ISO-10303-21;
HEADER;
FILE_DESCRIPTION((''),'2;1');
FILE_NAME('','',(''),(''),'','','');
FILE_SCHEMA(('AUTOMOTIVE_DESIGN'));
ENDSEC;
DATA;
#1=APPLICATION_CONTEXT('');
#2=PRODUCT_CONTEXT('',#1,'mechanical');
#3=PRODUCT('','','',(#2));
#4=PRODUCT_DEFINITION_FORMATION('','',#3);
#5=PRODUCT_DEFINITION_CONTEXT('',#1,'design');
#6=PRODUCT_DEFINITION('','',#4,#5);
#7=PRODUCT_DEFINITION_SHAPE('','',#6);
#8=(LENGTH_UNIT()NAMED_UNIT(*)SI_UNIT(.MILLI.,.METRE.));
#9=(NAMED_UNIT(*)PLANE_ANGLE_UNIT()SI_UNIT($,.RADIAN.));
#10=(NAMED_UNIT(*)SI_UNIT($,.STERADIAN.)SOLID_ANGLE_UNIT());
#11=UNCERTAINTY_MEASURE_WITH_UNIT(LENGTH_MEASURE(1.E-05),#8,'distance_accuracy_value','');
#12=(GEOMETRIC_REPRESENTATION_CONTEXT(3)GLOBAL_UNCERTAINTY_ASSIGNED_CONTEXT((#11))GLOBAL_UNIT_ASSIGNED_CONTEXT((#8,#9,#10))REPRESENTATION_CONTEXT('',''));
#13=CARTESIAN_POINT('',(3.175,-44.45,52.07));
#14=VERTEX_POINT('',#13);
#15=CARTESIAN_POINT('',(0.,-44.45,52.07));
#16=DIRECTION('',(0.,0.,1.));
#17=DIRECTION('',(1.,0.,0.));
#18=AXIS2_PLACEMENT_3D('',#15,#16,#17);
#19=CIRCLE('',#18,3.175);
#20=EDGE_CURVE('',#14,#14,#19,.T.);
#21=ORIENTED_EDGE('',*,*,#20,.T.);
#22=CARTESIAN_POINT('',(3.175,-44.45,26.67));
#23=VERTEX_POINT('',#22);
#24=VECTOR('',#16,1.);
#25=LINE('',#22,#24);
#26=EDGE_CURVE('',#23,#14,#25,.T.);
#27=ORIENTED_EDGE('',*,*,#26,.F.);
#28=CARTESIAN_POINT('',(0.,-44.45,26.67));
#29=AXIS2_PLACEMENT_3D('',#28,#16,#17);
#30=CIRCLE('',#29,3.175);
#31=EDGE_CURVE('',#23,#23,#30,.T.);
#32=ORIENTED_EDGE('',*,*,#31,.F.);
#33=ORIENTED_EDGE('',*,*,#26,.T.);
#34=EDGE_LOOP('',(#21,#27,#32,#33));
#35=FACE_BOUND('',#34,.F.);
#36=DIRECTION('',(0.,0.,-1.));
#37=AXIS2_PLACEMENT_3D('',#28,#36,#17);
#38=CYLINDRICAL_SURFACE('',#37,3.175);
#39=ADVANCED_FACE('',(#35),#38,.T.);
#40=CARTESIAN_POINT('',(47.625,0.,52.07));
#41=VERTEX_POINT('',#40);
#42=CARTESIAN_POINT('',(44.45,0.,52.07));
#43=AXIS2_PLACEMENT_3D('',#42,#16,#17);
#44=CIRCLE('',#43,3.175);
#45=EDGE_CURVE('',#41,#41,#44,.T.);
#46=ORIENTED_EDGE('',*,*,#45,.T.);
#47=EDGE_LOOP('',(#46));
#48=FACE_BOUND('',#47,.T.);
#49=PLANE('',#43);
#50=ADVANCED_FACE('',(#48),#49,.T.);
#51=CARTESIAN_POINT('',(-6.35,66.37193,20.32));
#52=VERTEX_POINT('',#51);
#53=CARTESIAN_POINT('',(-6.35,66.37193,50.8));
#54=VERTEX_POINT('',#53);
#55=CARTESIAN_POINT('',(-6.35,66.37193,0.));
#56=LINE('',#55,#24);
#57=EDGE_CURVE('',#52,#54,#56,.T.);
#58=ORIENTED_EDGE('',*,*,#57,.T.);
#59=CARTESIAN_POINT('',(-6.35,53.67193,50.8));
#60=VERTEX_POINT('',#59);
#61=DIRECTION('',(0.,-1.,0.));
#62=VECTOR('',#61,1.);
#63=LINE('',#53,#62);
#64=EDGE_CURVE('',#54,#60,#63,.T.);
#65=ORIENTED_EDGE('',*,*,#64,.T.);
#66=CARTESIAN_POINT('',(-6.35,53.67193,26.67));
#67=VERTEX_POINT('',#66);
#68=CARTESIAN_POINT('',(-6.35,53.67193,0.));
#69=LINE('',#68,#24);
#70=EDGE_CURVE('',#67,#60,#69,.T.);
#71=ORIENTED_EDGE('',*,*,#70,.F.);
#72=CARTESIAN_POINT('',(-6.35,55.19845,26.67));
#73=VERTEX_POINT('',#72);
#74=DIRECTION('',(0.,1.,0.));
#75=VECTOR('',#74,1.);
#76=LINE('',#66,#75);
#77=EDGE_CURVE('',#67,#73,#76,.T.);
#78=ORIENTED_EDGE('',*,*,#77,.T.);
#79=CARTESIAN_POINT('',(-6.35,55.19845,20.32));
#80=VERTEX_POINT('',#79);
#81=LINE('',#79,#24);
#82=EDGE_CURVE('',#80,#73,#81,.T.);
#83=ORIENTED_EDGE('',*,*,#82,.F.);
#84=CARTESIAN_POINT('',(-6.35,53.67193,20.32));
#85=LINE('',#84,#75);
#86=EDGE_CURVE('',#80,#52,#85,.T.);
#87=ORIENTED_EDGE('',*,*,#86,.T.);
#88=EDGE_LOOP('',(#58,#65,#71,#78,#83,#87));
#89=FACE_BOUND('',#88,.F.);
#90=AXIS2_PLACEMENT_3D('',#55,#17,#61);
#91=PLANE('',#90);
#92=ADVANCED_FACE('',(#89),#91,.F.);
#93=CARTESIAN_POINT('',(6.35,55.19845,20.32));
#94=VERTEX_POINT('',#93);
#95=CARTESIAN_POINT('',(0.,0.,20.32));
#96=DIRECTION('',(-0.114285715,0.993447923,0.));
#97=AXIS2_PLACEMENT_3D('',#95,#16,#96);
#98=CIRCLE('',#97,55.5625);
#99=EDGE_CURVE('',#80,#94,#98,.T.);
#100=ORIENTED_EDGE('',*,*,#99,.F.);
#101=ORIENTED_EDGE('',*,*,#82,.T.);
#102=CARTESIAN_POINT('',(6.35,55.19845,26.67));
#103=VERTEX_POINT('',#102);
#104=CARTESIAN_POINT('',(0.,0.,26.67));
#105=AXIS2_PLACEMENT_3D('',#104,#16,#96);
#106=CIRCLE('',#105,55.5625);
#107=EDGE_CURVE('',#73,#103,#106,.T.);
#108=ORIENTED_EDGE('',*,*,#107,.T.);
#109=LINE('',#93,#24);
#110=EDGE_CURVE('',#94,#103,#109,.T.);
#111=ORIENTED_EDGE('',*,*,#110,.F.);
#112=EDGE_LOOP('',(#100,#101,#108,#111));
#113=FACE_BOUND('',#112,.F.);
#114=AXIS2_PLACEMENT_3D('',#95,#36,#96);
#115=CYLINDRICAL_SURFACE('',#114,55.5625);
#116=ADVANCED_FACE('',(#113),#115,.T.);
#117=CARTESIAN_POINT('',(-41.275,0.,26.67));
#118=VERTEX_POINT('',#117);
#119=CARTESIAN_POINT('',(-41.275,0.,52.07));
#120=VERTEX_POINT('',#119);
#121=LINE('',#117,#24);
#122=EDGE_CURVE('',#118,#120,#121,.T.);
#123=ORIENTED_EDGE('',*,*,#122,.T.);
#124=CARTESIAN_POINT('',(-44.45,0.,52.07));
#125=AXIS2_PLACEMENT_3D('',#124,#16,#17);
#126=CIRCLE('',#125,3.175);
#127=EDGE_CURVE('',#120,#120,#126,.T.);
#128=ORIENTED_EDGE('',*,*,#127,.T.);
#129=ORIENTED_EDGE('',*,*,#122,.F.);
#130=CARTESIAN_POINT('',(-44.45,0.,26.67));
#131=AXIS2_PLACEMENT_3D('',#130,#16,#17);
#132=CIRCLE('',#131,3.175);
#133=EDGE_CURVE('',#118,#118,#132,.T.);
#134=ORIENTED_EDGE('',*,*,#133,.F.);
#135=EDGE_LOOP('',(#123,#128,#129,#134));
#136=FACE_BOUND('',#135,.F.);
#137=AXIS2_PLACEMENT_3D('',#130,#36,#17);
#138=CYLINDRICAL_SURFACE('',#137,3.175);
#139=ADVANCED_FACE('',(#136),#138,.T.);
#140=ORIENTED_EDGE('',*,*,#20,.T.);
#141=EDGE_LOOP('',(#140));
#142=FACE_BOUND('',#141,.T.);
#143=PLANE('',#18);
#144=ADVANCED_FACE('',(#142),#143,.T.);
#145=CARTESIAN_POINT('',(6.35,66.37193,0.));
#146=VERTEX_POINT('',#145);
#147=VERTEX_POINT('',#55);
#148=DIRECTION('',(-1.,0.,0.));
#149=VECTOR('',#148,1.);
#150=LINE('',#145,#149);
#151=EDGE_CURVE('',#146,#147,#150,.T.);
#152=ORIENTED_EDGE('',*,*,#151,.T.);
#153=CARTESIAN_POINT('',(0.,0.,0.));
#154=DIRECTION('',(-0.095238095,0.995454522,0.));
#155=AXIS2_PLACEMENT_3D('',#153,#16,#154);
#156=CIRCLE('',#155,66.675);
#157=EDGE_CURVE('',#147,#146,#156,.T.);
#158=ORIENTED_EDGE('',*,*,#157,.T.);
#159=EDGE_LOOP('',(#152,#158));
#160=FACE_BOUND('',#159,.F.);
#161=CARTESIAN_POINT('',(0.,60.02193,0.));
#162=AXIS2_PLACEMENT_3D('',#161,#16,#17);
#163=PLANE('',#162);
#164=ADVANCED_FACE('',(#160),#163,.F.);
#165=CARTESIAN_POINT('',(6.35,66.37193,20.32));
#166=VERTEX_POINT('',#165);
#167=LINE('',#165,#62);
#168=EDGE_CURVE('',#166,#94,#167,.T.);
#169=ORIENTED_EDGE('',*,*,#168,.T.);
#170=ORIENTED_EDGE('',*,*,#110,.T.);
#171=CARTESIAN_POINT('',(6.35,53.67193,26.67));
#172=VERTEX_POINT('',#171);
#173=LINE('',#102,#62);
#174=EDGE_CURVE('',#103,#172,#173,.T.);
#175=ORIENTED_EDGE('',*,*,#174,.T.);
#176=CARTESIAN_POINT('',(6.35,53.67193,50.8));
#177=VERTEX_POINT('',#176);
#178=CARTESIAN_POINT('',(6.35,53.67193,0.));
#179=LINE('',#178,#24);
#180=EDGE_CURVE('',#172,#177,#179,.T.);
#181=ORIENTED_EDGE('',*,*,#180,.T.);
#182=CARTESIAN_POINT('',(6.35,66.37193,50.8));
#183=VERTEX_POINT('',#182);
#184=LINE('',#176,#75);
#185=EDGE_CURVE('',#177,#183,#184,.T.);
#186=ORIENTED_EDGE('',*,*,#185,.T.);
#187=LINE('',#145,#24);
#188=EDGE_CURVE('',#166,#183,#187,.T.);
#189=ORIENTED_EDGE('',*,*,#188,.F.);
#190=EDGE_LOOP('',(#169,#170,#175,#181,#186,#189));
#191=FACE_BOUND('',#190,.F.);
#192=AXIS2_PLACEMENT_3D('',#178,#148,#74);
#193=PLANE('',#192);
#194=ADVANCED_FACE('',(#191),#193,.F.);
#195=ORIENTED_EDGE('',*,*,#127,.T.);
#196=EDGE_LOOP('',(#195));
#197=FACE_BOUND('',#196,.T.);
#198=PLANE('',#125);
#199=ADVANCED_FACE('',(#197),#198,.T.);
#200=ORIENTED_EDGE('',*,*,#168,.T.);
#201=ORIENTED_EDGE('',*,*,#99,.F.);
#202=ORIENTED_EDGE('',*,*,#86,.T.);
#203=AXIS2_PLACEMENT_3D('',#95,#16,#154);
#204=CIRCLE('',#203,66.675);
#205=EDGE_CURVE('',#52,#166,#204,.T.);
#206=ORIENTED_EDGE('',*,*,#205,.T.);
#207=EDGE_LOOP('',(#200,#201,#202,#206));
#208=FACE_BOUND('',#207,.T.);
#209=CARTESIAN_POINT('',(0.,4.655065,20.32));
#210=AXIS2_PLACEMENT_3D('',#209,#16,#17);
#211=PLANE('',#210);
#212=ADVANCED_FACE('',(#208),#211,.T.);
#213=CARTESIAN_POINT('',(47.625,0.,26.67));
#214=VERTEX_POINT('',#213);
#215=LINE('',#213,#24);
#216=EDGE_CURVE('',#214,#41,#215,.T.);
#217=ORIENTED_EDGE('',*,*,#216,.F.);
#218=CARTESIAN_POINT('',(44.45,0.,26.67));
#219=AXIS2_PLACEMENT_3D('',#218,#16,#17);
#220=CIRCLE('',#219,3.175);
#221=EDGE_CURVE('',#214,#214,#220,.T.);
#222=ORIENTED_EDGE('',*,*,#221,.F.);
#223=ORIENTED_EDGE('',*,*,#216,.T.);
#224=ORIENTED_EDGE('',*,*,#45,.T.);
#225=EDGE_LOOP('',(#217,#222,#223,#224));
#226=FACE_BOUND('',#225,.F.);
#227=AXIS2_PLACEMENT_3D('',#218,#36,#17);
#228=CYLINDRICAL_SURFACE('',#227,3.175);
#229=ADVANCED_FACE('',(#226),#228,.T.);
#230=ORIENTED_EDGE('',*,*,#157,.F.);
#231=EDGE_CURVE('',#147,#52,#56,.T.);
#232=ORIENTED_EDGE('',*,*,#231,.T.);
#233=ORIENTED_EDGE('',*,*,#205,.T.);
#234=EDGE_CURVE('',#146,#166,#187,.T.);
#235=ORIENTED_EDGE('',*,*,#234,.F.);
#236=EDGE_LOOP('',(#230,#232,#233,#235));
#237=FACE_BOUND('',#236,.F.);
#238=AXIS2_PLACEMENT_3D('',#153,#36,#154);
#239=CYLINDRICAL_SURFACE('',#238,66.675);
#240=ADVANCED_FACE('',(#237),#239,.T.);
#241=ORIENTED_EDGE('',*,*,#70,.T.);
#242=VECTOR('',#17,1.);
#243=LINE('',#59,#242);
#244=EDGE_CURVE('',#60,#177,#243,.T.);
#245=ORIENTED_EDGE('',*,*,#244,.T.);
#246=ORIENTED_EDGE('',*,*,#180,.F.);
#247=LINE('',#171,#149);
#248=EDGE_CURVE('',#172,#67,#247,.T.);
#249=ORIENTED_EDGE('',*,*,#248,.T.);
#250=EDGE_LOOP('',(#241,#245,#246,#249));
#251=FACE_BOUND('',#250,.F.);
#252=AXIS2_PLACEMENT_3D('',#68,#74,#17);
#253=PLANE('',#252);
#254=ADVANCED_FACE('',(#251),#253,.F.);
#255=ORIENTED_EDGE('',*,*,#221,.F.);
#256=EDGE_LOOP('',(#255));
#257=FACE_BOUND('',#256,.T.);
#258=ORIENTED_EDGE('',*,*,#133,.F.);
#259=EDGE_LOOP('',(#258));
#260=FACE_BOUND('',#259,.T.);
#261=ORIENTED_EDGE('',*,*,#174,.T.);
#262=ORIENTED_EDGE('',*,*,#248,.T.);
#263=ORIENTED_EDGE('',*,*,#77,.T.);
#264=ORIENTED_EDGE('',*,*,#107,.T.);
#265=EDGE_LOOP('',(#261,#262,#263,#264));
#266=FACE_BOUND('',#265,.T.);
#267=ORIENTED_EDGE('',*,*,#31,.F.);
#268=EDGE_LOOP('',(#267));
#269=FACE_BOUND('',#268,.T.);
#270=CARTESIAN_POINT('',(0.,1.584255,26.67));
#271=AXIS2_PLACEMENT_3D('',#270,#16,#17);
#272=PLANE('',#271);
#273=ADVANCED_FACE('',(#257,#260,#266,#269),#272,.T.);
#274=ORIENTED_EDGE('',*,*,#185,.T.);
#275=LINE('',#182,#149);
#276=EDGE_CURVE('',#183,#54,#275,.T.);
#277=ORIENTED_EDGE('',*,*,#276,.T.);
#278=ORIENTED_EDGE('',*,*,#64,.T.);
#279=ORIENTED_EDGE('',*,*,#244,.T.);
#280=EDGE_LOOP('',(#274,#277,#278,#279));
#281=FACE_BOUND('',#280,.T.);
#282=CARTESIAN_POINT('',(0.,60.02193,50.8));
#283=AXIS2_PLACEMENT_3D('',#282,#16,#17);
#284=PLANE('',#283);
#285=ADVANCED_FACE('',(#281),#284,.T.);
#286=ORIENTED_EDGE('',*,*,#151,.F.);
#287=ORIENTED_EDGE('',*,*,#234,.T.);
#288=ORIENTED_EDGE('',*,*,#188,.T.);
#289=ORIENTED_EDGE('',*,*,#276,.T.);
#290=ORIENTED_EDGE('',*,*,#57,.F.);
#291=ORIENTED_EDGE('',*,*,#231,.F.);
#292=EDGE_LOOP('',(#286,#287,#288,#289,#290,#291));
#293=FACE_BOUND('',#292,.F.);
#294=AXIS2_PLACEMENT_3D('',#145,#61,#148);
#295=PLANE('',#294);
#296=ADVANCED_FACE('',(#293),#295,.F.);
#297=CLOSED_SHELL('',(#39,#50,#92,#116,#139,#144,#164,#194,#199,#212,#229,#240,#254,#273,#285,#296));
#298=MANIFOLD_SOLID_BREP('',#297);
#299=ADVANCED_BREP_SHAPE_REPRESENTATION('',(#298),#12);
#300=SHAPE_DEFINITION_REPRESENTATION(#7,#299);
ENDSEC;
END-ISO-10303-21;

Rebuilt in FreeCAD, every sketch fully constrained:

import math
import FreeCAD as App
import Part
import Sketcher
from FreeCAD import Vector
Q = App.Units.Quantity

doc = App.newDocument("Part")
body = doc.addObject("PartDesign::Body", "Body")

sketch1 = body.newObject("Sketcher::SketchObject", "Sketch")
sketch1.AttachmentSupport = (doc.getObject("XY_Plane"), [""])
sketch1.MapMode = "FlatFace"
sketch1.addGeometry([
    Part.LineSegment(Vector(-6.35, 53.67193, 0), Vector(-6.35, 66.37193, 0)),
    Part.ArcOfCircle(Part.Circle(Vector(0, 0, 0), Vector(0, 0, 1), 66.675), math.radians(95.465024), math.radians(444.534976)),
    Part.LineSegment(Vector(6.35, 66.37193, 0), Vector(6.35, 53.67193, 0)),
    Part.LineSegment(Vector(6.35, 53.67193, 0), Vector(-6.35, 53.67193, 0)),
], False)
sketch1.addConstraint([
    Sketcher.Constraint("Coincident", 0, 2, 1, 1),
    Sketcher.Constraint("Coincident", 1, 2, 2, 1),
    Sketcher.Constraint("Coincident", 2, 2, 3, 1),
    Sketcher.Constraint("Coincident", 3, 2, 0, 1),
    Sketcher.Constraint("Vertical", 0),
    Sketcher.Constraint("Vertical", 2),
    Sketcher.Constraint("Horizontal", 3),
    Sketcher.Constraint("Coincident", 1, 3, -1, 1),
    Sketcher.Constraint("Horizontal", 0, 2, 1, 2),
    Sketcher.Constraint("Equal", 3, 0),
    Sketcher.Constraint("DistanceX", 3, 2, 3, 1, Q("0.5 in")),
    Sketcher.Constraint("Radius", 1, Q("2.625 in")),
])
pad1 = body.newObject("PartDesign::Pad", "Pad")
pad1.Profile = sketch1
pad1.Length = Q("0.8 in")

sketch2 = body.newObject("Sketcher::SketchObject", "Sketch001")
sketch2.AttachmentSupport = (doc.getObject("XY_Plane"), [""])
sketch2.MapMode = "FlatFace"
sketch2.AttachmentOffset = App.Placement(Vector(0, 0, 0.8 * 25.4), App.Rotation())
sketch2.addGeometry([
    Part.LineSegment(Vector(-6.35, 53.67193, 0), Vector(-6.35, 55.19845, 0)),
    Part.ArcOfCircle(Part.Circle(Vector(0, 0, 0), Vector(0, 0, 1), 55.5625), math.radians(96.562428), math.radians(443.437572)),
    Part.LineSegment(Vector(6.35, 55.19845, 0), Vector(6.35, 53.67193, 0)),
    Part.LineSegment(Vector(6.35, 53.67193, 0), Vector(-6.35, 53.67193, 0)),
], False)
sketch2.addConstraint([
    Sketcher.Constraint("Coincident", 0, 2, 1, 1),
    Sketcher.Constraint("Coincident", 1, 2, 2, 1),
    Sketcher.Constraint("Coincident", 2, 2, 3, 1),
    Sketcher.Constraint("Coincident", 3, 2, 0, 1),
    Sketcher.Constraint("Vertical", 0),
    Sketcher.Constraint("Vertical", 2),
    Sketcher.Constraint("Horizontal", 3),
    Sketcher.Constraint("Coincident", 1, 3, -1, 1),
    Sketcher.Constraint("Horizontal", 0, 2, 1, 2),
    Sketcher.Constraint("DistanceX", 3, 2, 3, 1, Q("0.5 in")),
    Sketcher.Constraint("Radius", 1, Q("2.1875 in")),
    Sketcher.Constraint("DistanceY", 0, 1, 0, 2, Q("1.52652 mm")),
])
pad2 = body.newObject("PartDesign::Pad", "Pad001")
pad2.Profile = sketch2
pad2.Length = Q("0.25 in")

sketch3 = body.newObject("Sketcher::SketchObject", "Sketch002")
sketch3.AttachmentSupport = (doc.getObject("XY_Plane"), [""])
sketch3.MapMode = "FlatFace"
sketch3.addGeometry([
    Part.LineSegment(Vector(-6.35, 53.67193, 0), Vector(6.35, 53.67193, 0)),
    Part.LineSegment(Vector(6.35, 53.67193, 0), Vector(6.35, 66.37193, 0)),
    Part.LineSegment(Vector(6.35, 66.37193, 0), Vector(-6.35, 66.37193, 0)),
    Part.LineSegment(Vector(-6.35, 66.37193, 0), Vector(-6.35, 53.67193, 0)),
], False)
sketch3.addConstraint([
    Sketcher.Constraint("Coincident", 0, 2, 1, 1),
    Sketcher.Constraint("Coincident", 1, 2, 2, 1),
    Sketcher.Constraint("Coincident", 2, 2, 3, 1),
    Sketcher.Constraint("Coincident", 3, 2, 0, 1),
    Sketcher.Constraint("Horizontal", 0),
    Sketcher.Constraint("Vertical", 1),
    Sketcher.Constraint("Horizontal", 2),
    Sketcher.Constraint("Vertical", 3),
    Sketcher.Constraint("Equal", 2, 1),
    Sketcher.Constraint("DistanceX", 0, 1, 0, 2, Q("0.5 in")),
    Sketcher.Constraint("DistanceX", -1, 1, 0, 2, Q("0.25 in")),
    Sketcher.Constraint("DistanceY", -1, 1, 0, 2, Q("53.67193 mm")),
])
pad3 = body.newObject("PartDesign::Pad", "Pad002")
pad3.Profile = sketch3
pad3.Length = Q("2 in")

sketch4 = body.newObject("Sketcher::SketchObject", "Sketch003")
sketch4.AttachmentSupport = (doc.getObject("XY_Plane"), [""])
sketch4.MapMode = "FlatFace"
sketch4.AttachmentOffset = App.Placement(Vector(0, 0, 1.05 * 25.4), App.Rotation())
sketch4.addGeometry([
    Part.Circle(Vector(44.45, 0, 0), Vector(0, 0, 1), 3.175),
    Part.Circle(Vector(0, -44.45, 0), Vector(0, 0, 1), 3.175),
    Part.Circle(Vector(-44.45, 0, 0), Vector(0, 0, 1), 3.175),
], False)
sketch4.addConstraint([
    Sketcher.Constraint("Equal", 0, 1),
    Sketcher.Constraint("Equal", 1, 2),
    Sketcher.Constraint("Symmetric", 0, 3, 2, 3, -1, 1),
    Sketcher.Constraint("PointOnObject", 0, 3, -1),
    Sketcher.Constraint("PointOnObject", 1, 3, -2),
    Sketcher.Constraint("Diameter", 0, Q("0.25 in")),
    Sketcher.Constraint("DistanceX", 2, 3, 0, 3, Q("3.5 in")),
    Sketcher.Constraint("DistanceY", 1, 3, -1, 1, Q("1.75 in")),
])
pad4 = body.newObject("PartDesign::Pad", "Pad003")
pad4.Profile = sketch4
pad4.Length = Q("1 in")

doc.recompute()
